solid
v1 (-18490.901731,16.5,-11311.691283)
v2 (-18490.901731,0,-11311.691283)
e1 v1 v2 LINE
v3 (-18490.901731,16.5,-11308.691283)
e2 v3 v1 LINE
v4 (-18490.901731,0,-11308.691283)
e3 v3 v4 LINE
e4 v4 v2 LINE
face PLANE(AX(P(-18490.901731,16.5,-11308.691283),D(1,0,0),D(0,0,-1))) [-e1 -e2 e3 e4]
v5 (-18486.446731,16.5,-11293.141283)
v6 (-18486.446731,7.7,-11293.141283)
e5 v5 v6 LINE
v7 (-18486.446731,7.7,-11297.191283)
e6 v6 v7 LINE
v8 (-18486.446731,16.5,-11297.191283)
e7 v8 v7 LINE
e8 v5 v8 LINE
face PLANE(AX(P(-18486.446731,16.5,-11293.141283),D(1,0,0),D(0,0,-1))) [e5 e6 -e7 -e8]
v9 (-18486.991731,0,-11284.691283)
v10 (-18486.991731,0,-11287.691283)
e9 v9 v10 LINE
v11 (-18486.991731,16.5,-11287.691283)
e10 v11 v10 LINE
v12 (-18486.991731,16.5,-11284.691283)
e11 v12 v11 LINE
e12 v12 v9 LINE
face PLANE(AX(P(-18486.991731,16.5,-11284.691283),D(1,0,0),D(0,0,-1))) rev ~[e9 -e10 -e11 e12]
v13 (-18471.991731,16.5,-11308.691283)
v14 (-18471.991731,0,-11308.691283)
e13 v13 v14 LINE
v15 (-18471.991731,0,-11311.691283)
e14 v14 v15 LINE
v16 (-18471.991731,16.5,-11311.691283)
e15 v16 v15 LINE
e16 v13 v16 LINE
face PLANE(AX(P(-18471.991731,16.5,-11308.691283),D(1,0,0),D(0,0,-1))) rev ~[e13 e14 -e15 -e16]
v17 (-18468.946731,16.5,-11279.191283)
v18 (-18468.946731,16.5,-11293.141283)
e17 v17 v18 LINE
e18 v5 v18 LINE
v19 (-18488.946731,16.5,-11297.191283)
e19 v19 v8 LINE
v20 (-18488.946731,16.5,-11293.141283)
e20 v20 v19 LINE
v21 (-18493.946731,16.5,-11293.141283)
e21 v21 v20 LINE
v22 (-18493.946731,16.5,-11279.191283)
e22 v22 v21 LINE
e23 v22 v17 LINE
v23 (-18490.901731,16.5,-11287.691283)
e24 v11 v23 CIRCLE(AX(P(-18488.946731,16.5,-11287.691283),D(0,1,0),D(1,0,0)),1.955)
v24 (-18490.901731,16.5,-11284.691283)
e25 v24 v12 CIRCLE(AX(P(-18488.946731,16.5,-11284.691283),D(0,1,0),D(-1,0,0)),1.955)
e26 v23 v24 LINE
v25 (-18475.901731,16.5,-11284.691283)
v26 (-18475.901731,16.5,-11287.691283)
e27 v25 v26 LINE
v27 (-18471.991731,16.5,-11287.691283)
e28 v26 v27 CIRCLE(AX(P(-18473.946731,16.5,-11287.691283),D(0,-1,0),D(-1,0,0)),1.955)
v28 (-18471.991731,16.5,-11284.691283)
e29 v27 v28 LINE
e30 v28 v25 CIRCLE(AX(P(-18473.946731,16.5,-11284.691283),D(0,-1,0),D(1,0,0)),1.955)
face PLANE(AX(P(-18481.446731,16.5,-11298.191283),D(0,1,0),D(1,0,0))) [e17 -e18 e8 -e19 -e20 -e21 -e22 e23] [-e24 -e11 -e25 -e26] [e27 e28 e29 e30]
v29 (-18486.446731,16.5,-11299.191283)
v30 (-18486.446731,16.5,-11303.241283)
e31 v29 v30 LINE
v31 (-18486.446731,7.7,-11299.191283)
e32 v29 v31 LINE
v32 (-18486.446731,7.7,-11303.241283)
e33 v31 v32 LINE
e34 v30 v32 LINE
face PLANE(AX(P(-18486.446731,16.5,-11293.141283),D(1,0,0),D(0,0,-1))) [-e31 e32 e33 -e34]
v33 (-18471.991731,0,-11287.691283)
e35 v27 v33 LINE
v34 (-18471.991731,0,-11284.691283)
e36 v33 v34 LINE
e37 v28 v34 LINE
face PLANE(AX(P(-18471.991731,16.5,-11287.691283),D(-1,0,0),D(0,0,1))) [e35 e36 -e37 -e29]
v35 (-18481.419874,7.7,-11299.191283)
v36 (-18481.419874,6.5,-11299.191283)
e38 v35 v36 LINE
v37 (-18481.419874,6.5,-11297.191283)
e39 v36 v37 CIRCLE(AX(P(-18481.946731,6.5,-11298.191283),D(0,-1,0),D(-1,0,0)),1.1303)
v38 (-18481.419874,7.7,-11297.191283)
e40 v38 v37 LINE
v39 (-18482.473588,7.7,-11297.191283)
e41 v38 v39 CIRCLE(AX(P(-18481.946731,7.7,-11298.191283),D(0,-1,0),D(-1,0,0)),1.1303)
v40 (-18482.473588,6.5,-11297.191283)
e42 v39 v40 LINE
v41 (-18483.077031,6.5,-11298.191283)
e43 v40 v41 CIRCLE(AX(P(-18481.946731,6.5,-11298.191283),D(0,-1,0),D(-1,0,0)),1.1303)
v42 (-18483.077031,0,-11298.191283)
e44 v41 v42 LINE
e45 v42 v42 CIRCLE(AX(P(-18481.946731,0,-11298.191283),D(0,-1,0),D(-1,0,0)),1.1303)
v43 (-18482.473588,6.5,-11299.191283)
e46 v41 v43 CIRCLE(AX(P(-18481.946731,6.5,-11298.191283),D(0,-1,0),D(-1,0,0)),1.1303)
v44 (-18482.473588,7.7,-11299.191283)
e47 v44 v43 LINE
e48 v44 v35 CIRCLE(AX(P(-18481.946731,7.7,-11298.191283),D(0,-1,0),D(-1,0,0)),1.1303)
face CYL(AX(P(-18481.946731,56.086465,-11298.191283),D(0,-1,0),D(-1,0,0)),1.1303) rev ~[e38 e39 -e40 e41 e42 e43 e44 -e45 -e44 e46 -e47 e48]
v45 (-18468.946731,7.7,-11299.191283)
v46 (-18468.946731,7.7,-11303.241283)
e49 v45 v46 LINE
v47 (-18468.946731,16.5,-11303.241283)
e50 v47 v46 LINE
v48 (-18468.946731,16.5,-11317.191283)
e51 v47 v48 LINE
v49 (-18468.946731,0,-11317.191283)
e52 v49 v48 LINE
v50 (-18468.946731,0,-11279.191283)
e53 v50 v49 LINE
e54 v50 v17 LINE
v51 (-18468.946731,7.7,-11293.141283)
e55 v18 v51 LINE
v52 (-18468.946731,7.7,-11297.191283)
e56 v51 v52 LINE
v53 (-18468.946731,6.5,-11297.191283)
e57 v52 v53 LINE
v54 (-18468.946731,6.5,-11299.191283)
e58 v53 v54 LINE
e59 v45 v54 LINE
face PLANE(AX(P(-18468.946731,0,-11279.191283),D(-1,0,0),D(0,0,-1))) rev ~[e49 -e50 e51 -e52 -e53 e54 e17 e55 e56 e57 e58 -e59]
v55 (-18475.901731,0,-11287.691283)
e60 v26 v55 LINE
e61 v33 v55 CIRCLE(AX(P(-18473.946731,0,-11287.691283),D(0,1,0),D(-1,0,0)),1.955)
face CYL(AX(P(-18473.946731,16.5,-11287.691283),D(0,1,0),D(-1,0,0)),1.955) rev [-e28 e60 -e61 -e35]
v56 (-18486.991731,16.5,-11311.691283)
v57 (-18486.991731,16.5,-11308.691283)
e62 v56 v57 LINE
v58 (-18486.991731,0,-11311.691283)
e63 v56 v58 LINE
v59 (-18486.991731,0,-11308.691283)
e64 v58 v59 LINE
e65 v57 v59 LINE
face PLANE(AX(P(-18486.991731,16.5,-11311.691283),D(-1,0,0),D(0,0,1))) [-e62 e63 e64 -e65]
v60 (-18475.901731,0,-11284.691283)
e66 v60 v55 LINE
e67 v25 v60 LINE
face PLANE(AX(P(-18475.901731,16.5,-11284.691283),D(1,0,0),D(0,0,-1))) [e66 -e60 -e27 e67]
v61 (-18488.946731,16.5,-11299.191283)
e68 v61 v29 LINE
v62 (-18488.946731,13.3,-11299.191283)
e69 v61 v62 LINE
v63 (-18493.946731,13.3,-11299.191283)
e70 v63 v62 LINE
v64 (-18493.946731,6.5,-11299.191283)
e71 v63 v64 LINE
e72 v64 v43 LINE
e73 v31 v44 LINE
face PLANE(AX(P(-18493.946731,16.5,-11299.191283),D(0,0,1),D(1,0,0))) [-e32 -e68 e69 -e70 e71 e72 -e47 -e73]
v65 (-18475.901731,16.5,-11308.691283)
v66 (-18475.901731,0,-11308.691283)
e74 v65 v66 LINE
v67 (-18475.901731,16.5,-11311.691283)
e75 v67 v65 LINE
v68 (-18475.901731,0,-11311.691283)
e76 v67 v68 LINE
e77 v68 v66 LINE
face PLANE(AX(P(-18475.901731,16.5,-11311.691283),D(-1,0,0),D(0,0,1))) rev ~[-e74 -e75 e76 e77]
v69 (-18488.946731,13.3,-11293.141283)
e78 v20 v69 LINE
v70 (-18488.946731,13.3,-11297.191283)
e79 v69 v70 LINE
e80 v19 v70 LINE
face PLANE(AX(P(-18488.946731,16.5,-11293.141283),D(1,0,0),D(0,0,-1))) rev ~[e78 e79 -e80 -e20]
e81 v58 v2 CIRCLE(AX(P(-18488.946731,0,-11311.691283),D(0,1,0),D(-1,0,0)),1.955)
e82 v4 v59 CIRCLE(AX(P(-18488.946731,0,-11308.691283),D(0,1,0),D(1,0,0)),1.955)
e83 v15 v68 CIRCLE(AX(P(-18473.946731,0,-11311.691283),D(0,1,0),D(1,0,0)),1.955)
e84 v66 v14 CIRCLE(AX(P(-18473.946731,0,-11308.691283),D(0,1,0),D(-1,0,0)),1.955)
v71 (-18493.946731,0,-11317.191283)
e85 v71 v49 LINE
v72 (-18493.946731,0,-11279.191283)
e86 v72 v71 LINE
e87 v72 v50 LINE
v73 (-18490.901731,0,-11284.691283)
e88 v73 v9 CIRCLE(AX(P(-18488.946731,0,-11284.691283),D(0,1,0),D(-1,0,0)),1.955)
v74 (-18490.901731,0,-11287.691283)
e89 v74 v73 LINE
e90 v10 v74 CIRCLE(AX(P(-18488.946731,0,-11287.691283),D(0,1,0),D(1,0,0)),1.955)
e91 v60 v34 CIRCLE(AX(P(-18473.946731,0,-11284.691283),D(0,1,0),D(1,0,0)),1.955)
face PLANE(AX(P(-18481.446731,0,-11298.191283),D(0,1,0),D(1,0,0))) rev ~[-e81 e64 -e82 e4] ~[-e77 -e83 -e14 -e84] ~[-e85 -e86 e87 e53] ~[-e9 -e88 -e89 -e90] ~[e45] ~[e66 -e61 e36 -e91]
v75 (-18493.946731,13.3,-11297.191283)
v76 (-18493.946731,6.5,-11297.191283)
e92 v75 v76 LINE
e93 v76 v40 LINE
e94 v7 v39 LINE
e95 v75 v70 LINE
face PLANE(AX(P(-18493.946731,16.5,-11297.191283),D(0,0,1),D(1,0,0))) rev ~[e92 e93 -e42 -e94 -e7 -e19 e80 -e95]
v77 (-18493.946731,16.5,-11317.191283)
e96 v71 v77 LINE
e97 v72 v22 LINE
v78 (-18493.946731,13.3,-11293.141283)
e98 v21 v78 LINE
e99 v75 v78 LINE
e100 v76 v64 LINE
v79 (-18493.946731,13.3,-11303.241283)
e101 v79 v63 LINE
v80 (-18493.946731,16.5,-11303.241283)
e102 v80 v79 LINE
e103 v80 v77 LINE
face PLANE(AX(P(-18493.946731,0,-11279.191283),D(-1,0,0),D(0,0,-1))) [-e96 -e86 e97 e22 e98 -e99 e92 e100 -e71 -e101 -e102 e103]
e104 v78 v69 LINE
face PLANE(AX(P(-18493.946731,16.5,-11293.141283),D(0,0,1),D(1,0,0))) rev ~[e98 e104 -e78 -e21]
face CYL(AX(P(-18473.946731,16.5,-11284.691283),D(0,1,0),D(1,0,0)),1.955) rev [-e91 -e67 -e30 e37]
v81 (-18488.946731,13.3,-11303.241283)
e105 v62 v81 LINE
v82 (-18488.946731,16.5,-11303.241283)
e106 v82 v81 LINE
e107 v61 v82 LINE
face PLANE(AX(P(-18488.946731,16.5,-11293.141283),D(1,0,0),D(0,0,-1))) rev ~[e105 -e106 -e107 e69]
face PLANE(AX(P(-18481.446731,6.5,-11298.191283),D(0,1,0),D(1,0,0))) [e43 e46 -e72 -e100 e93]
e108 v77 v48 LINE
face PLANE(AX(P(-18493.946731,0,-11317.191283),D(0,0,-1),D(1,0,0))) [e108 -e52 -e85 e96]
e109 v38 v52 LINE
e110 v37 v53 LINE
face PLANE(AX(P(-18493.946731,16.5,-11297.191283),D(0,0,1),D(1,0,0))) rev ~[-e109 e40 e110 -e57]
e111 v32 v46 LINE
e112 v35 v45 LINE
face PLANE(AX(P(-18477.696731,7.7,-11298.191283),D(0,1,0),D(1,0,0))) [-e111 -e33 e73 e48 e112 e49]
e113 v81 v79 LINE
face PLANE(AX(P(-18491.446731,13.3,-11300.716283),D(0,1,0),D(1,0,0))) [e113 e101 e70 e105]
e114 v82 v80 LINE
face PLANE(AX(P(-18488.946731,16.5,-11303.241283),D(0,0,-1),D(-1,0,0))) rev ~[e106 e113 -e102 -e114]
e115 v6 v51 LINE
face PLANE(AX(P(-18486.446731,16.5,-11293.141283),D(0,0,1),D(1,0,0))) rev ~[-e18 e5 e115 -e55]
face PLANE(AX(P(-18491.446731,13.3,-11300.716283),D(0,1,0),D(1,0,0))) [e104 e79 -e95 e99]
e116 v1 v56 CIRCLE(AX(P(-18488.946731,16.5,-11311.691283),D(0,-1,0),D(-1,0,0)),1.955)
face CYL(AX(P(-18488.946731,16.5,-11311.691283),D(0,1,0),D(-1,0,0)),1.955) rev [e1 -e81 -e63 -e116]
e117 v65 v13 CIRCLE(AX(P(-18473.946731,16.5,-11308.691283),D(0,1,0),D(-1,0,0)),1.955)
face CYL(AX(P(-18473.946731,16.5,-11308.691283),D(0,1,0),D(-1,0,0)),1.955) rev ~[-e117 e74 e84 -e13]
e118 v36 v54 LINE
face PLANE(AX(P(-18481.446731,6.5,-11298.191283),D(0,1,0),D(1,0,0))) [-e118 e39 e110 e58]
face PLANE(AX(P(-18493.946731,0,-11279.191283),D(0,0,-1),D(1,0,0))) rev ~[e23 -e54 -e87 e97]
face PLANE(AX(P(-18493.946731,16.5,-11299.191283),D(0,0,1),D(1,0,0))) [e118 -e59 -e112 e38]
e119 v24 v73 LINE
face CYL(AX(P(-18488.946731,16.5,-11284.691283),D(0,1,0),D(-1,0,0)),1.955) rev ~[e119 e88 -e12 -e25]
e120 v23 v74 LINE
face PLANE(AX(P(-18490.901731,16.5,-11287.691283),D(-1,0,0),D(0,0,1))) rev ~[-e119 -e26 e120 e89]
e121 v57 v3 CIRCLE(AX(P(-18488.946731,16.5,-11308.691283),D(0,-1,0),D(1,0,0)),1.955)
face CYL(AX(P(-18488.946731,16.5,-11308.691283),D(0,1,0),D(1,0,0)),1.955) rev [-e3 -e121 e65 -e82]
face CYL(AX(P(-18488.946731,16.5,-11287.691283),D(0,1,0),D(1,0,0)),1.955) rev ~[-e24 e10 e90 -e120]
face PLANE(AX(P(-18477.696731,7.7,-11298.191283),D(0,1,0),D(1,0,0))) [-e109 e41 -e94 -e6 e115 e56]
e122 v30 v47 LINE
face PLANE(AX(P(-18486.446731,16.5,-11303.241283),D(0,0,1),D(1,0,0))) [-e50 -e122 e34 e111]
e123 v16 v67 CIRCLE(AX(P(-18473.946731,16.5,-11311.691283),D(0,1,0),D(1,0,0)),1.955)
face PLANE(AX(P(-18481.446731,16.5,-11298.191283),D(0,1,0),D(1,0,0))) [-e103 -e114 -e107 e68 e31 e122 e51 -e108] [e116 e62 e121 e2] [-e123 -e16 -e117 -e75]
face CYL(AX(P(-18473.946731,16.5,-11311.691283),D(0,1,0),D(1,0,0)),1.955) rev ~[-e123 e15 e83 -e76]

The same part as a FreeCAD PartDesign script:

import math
import FreeCAD as App
import Part
import Sketcher


def add_polygon(sketch, points):
    """Adds a closed chain of lines whose ends are joined by coincident constraints."""
    first, n = sketch.GeometryCount, len(points)
    for a, b in zip(points, points[1:] + points[:1]):
        sketch.addGeometry(Part.LineSegment(App.Vector(*a, 0), App.Vector(*b, 0)), False)
    for i in range(n):
        sketch.addConstraint(Sketcher.Constraint("Coincident", first + i, 2, first + (i + 1) % n, 1))

doc = App.newDocument("Part")
body = doc.addObject("PartDesign::Body", "Body")

# Sketch on XZ plane
sketch1 = doc.addObject("Sketcher::SketchObject", "Sketch")
body.addObject(sketch1)
sketch1.AttachmentSupport = (doc.XZ_Plane, [""])
sketch1.MapMode = "FlatFace"
add_polygon(sketch1, [(-18493.946731, -11317.191283), (-18493.946731, -11279.191283), (-18468.946731, -11279.191283), (-18468.946731, -11317.191283)])  # lines 0-3
sketch1.addConstraint([
    Sketcher.Constraint("Vertical", 0),
    Sketcher.Constraint("Horizontal", 1),
    Sketcher.Constraint("Vertical", 2),
    Sketcher.Constraint("Horizontal", 3),
    Sketcher.Constraint("DistanceX", 1, 1, 1, 2, 25.0),
    Sketcher.Constraint("DistanceY", 0, 1, 0, 2, 38.0),
    Sketcher.Constraint("DistanceX", 0, 2, -1, 1, 18493.946731),
    Sketcher.Constraint("DistanceY", 0, 2, -1, 1, 11279.191283),
])
pad1 = doc.addObject("PartDesign::Pad", "Pad")
body.addObject(pad1)
pad1.Profile = sketch1
pad1.Length = 16.5
pad1.Reversed = True

# Sketch on XZ plane
sketch2 = doc.addObject("Sketcher::SketchObject", "Sketch001")
body.addObject(sketch2)
sketch2.AttachmentSupport = (doc.XZ_Plane, [""])
sketch2.MapMode = "FlatFace"
sketch2.AttachmentOffset = App.Placement(App.Vector(0, 0, -16.5), App.Rotation())
sketch2.addGeometry([
    Part.LineSegment(App.Vector(-18486.991731, -11308.691283, 0), App.Vector(-18486.991731, -11311.691283, 0)),  # 0
    Part.ArcOfCircle(Part.Circle(App.Vector(-18488.946731, -11311.691283, 0), App.Vector(0, 0, 1), 1.955), math.radians(180), math.radians(360)),  # 1
    Part.LineSegment(App.Vector(-18490.901731, -11311.691283, 0), App.Vector(-18490.901731, -11308.691283, 0)),  # 2
    Part.ArcOfCircle(Part.Circle(App.Vector(-18488.946731, -11308.691283, 0), App.Vector(0, 0, 1), 1.955), math.radians(0), math.radians(180)),  # 3
    Part.LineSegment(App.Vector(-18486.991731, -11284.691283, 0), App.Vector(-18486.991731, -11287.691283, 0)),  # 4
    Part.ArcOfCircle(Part.Circle(App.Vector(-18488.946731, -11287.691283, 0), App.Vector(0, 0, 1), 1.955), math.radians(180), math.radians(360)),  # 5
    Part.LineSegment(App.Vector(-18490.901731, -11287.691283, 0), App.Vector(-18490.901731, -11284.691283, 0)),  # 6
    Part.ArcOfCircle(Part.Circle(App.Vector(-18488.946731, -11284.691283, 0), App.Vector(0, 0, 1), 1.955), math.radians(0), math.radians(180)),  # 7
    Part.LineSegment(App.Vector(-18475.901731, -11287.691283, 0), App.Vector(-18475.901731, -11284.691283, 0)),  # 8
    Part.ArcOfCircle(Part.Circle(App.Vector(-18473.946731, -11284.691283, 0), App.Vector(0, 0, 1), 1.955), math.radians(0), math.radians(180)),  # 9
    Part.LineSegment(App.Vector(-18471.991731, -11284.691283, 0), App.Vector(-18471.991731, -11287.691283, 0)),  # 10
    Part.ArcOfCircle(Part.Circle(App.Vector(-18473.946731, -11287.691283, 0), App.Vector(0, 0, 1), 1.955), math.radians(180), math.radians(360)),  # 11
    Part.LineSegment(App.Vector(-18475.901731, -11311.691283, 0), App.Vector(-18475.901731, -11308.691283, 0)),  # 12
    Part.ArcOfCircle(Part.Circle(App.Vector(-18473.946731, -11308.691283, 0), App.Vector(0, 0, 1), 1.955), math.radians(0), math.radians(180)),  # 13
    Part.LineSegment(App.Vector(-18471.991731, -11308.691283, 0), App.Vector(-18471.991731, -11311.691283, 0)),  # 14
    Part.ArcOfCircle(Part.Circle(App.Vector(-18473.946731, -11311.691283, 0), App.Vector(0, 0, 1), 1.955), math.radians(180), math.radians(360)),  # 15
], False)
sketch2.addConstraint([
    Sketcher.Constraint("Tangent", 0, 2, 1, 2),
    Sketcher.Constraint("Tangent", 1, 1, 2, 1),
    Sketcher.Constraint("Tangent", 2, 2, 3, 2),
    Sketcher.Constraint("Tangent", 3, 1, 0, 1),
    Sketcher.Constraint("Tangent", 4, 2, 5, 2),
    Sketcher.Constraint("Tangent", 5, 1, 6, 1),
    Sketcher.Constraint("Tangent", 6, 2, 7, 2),
    Sketcher.Constraint("Tangent", 7, 1, 4, 1),
    Sketcher.Constraint("Tangent", 8, 2, 9, 2),
    Sketcher.Constraint("Tangent", 9, 1, 10, 1),
    Sketcher.Constraint("Tangent", 10, 2, 11, 2),
    Sketcher.Constraint("Tangent", 11, 1, 8, 1),
    Sketcher.Constraint("Tangent", 12, 2, 13, 2),
    Sketcher.Constraint("Tangent", 13, 1, 14, 1),
    Sketcher.Constraint("Tangent", 14, 2, 15, 2),
    Sketcher.Constraint("Tangent", 15, 1, 12, 1),
    Sketcher.Constraint("Vertical", 0),
    Sketcher.Constraint("Vertical", 2),
    Sketcher.Constraint("Vertical", 4),
    Sketcher.Constraint("Vertical", 6),
    Sketcher.Constraint("Vertical", 8),
    Sketcher.Constraint("Vertical", 10),
    Sketcher.Constraint("Vertical", 12),
    Sketcher.Constraint("Vertical", 14),
    Sketcher.Constraint("Equal", 3, 5),
    Sketcher.Constraint("Equal", 7, 9),
    Sketcher.Constraint("Equal", 11, 13),
    Sketcher.Constraint("Horizontal", 7, 3, 9, 3),
    Sketcher.Constraint("Horizontal", 5, 3, 11, 3),
    Sketcher.Constraint("Horizontal", 3, 3, 13, 3),
    Sketcher.Constraint("Horizontal", 1, 3, 15, 3),
    Sketcher.Constraint("Vertical", 3, 3, 5, 3),
    Sketcher.Constraint("Vertical", 11, 3, 13, 3),
    Sketcher.Constraint("Equal", 2, 4),
    Sketcher.Constraint("DistanceY", 0, 2, 0, 1, 3.0),
    Sketcher.Constraint("Radius", 1, 1.955),
    Sketcher.Constraint("DistanceY", 3, 3, 5, 3, 21.0),
    Sketcher.Constraint("DistanceX", 7, 3, 9, 3, 15.0),
    Sketcher.Constraint("DistanceX", 1, 3, -1, 1, 18488.946731),
    Sketcher.Constraint("DistanceY", 1, 3, -1, 1, 11311.691283),
])
pocket1 = doc.addObject("PartDesign::Pocket", "Pocket")
body.addObject(pocket1)
pocket1.Profile = sketch2
pocket1.Type = "ThroughAll"
pocket1.Reversed = True

# Sketch on XZ plane
sketch3 = doc.addObject("Sketcher::SketchObject", "Sketch002")
body.addObject(sketch3)
sketch3.AttachmentSupport = (doc.XZ_Plane, [""])
sketch3.MapMode = "FlatFace"
sketch3.AttachmentOffset = App.Placement(App.Vector(0, 0, -16.5), App.Rotation())
add_polygon(sketch3, [(-18488.946731, -11303.241283), (-18493.946731, -11303.241283), (-18493.946731, -11293.141283), (-18488.946731, -11293.141283)])  # lines 0-3
sketch3.addConstraint([
    Sketcher.Constraint("Horizontal", 0),
    Sketcher.Constraint("Vertical", 1),
    Sketcher.Constraint("Horizontal", 2),
    Sketcher.Constraint("Vertical", 3),
    Sketcher.Constraint("DistanceX", 0, 2, 0, 1, 5.0),
    Sketcher.Constraint("DistanceY", 1, 1, 1, 2, 10.1),
    Sketcher.Constraint("DistanceX", 0, 2, -1, 1, 18493.946731),
    Sketcher.Constraint("DistanceY", 0, 2, -1, 1, 11303.241283),
])
pocket2 = doc.addObject("PartDesign::Pocket", "Pocket001")
body.addObject(pocket2)
pocket2.Profile = sketch3
pocket2.Length = 3.2
pocket2.Reversed = True

# Sketch on XZ plane
sketch4 = doc.addObject("Sketcher::SketchObject", "Sketch003")
body.addObject(sketch4)
sketch4.AttachmentSupport = (doc.XZ_Plane, [""])
sketch4.MapMode = "FlatFace"
sketch4.AttachmentOffset = App.Placement(App.Vector(0, 0, -16.5), App.Rotation())
add_polygon(sketch4, [(-18486.446731, -11303.241283), (-18486.446731, -11293.141283), (-18468.946731, -11293.141283), (-18468.946731, -11303.241283)])  # lines 0-3
sketch4.addConstraint([
    Sketcher.Constraint("Vertical", 0),
    Sketcher.Constraint("Horizontal", 1),
    Sketcher.Constraint("Vertical", 2),
    Sketcher.Constraint("Horizontal", 3),
    Sketcher.Constraint("DistanceX", 1, 1, 1, 2, 17.5),
    Sketcher.Constraint("DistanceY", 0, 1, 0, 2, 10.1),
    Sketcher.Constraint("DistanceX", 0, 2, -1, 1, 18486.446731),
    Sketcher.Constraint("DistanceY", 0, 2, -1, 1, 11293.141283),
])
pocket3 = doc.addObject("PartDesign::Pocket", "Pocket002")
body.addObject(pocket3)
pocket3.Profile = sketch4
pocket3.Length = 8.8
pocket3.Reversed = True

# Sketch on XZ plane
sketch5 = doc.addObject("Sketcher::SketchObject", "Sketch004")
body.addObject(sketch5)
sketch5.AttachmentSupport = (doc.XZ_Plane, [""])
sketch5.MapMode = "FlatFace"
sketch5.AttachmentOffset = App.Placement(App.Vector(0, 0, -16.5), App.Rotation())
add_polygon(sketch5, [(-18493.946731, -11299.191283), (-18493.946731, -11297.191283), (-18468.946731, -11297.191283), (-18468.946731, -11299.191283)])  # lines 0-3
sketch5.addConstraint([
    Sketcher.Constraint("Vertical", 0),
    Sketcher.Constraint("Horizontal", 1),
    Sketcher.Constraint("Vertical", 2),
    Sketcher.Constraint("Horizontal", 3),
    Sketcher.Constraint("DistanceX", 1, 1, 1, 2, 25.0),
    Sketcher.Constraint("DistanceY", 0, 1, 0, 2, 2.0),
    Sketcher.Constraint("DistanceX", 0, 2, -1, 1, 18493.946731),
    Sketcher.Constraint("DistanceY", 0, 2, -1, 1, 11297.191283),
])
pocket4 = doc.addObject("PartDesign::Pocket", "Pocket003")
body.addObject(pocket4)
pocket4.Profile = sketch5
pocket4.Length = 10
pocket4.Reversed = True

# Sketch on XZ plane
sketch6 = doc.addObject("Sketcher::SketchObject", "Sketch005")
body.addObject(sketch6)
sketch6.AttachmentSupport = (doc.XZ_Plane, [""])
sketch6.MapMode = "FlatFace"
sketch6.AttachmentOffset = App.Placement(App.Vector(0, 0, -7.7), App.Rotation())
sketch6.addGeometry(Part.Circle(App.Vector(-18481.946731, -11298.191283, 0), App.Vector(0, 0, 1), 1.1303), False)
sketch6.addConstraint([
    Sketcher.Constraint("Diameter", 0, 2.2606),
    Sketcher.Constraint("DistanceX", 0, 3, -1, 1, 18481.946731),
    Sketcher.Constraint("DistanceY", 0, 3, -1, 1, 11298.191283),
])
doc.recompute()
hole = doc.addObject("PartDesign::Hole", "Hole")
body.addObject(hole)
hole.Profile = sketch6
hole.ThreadType = "None"
hole.Diameter = 2.2606
hole.DepthType = "ThroughAll"
hole.Reversed = True

doc.recompute()
